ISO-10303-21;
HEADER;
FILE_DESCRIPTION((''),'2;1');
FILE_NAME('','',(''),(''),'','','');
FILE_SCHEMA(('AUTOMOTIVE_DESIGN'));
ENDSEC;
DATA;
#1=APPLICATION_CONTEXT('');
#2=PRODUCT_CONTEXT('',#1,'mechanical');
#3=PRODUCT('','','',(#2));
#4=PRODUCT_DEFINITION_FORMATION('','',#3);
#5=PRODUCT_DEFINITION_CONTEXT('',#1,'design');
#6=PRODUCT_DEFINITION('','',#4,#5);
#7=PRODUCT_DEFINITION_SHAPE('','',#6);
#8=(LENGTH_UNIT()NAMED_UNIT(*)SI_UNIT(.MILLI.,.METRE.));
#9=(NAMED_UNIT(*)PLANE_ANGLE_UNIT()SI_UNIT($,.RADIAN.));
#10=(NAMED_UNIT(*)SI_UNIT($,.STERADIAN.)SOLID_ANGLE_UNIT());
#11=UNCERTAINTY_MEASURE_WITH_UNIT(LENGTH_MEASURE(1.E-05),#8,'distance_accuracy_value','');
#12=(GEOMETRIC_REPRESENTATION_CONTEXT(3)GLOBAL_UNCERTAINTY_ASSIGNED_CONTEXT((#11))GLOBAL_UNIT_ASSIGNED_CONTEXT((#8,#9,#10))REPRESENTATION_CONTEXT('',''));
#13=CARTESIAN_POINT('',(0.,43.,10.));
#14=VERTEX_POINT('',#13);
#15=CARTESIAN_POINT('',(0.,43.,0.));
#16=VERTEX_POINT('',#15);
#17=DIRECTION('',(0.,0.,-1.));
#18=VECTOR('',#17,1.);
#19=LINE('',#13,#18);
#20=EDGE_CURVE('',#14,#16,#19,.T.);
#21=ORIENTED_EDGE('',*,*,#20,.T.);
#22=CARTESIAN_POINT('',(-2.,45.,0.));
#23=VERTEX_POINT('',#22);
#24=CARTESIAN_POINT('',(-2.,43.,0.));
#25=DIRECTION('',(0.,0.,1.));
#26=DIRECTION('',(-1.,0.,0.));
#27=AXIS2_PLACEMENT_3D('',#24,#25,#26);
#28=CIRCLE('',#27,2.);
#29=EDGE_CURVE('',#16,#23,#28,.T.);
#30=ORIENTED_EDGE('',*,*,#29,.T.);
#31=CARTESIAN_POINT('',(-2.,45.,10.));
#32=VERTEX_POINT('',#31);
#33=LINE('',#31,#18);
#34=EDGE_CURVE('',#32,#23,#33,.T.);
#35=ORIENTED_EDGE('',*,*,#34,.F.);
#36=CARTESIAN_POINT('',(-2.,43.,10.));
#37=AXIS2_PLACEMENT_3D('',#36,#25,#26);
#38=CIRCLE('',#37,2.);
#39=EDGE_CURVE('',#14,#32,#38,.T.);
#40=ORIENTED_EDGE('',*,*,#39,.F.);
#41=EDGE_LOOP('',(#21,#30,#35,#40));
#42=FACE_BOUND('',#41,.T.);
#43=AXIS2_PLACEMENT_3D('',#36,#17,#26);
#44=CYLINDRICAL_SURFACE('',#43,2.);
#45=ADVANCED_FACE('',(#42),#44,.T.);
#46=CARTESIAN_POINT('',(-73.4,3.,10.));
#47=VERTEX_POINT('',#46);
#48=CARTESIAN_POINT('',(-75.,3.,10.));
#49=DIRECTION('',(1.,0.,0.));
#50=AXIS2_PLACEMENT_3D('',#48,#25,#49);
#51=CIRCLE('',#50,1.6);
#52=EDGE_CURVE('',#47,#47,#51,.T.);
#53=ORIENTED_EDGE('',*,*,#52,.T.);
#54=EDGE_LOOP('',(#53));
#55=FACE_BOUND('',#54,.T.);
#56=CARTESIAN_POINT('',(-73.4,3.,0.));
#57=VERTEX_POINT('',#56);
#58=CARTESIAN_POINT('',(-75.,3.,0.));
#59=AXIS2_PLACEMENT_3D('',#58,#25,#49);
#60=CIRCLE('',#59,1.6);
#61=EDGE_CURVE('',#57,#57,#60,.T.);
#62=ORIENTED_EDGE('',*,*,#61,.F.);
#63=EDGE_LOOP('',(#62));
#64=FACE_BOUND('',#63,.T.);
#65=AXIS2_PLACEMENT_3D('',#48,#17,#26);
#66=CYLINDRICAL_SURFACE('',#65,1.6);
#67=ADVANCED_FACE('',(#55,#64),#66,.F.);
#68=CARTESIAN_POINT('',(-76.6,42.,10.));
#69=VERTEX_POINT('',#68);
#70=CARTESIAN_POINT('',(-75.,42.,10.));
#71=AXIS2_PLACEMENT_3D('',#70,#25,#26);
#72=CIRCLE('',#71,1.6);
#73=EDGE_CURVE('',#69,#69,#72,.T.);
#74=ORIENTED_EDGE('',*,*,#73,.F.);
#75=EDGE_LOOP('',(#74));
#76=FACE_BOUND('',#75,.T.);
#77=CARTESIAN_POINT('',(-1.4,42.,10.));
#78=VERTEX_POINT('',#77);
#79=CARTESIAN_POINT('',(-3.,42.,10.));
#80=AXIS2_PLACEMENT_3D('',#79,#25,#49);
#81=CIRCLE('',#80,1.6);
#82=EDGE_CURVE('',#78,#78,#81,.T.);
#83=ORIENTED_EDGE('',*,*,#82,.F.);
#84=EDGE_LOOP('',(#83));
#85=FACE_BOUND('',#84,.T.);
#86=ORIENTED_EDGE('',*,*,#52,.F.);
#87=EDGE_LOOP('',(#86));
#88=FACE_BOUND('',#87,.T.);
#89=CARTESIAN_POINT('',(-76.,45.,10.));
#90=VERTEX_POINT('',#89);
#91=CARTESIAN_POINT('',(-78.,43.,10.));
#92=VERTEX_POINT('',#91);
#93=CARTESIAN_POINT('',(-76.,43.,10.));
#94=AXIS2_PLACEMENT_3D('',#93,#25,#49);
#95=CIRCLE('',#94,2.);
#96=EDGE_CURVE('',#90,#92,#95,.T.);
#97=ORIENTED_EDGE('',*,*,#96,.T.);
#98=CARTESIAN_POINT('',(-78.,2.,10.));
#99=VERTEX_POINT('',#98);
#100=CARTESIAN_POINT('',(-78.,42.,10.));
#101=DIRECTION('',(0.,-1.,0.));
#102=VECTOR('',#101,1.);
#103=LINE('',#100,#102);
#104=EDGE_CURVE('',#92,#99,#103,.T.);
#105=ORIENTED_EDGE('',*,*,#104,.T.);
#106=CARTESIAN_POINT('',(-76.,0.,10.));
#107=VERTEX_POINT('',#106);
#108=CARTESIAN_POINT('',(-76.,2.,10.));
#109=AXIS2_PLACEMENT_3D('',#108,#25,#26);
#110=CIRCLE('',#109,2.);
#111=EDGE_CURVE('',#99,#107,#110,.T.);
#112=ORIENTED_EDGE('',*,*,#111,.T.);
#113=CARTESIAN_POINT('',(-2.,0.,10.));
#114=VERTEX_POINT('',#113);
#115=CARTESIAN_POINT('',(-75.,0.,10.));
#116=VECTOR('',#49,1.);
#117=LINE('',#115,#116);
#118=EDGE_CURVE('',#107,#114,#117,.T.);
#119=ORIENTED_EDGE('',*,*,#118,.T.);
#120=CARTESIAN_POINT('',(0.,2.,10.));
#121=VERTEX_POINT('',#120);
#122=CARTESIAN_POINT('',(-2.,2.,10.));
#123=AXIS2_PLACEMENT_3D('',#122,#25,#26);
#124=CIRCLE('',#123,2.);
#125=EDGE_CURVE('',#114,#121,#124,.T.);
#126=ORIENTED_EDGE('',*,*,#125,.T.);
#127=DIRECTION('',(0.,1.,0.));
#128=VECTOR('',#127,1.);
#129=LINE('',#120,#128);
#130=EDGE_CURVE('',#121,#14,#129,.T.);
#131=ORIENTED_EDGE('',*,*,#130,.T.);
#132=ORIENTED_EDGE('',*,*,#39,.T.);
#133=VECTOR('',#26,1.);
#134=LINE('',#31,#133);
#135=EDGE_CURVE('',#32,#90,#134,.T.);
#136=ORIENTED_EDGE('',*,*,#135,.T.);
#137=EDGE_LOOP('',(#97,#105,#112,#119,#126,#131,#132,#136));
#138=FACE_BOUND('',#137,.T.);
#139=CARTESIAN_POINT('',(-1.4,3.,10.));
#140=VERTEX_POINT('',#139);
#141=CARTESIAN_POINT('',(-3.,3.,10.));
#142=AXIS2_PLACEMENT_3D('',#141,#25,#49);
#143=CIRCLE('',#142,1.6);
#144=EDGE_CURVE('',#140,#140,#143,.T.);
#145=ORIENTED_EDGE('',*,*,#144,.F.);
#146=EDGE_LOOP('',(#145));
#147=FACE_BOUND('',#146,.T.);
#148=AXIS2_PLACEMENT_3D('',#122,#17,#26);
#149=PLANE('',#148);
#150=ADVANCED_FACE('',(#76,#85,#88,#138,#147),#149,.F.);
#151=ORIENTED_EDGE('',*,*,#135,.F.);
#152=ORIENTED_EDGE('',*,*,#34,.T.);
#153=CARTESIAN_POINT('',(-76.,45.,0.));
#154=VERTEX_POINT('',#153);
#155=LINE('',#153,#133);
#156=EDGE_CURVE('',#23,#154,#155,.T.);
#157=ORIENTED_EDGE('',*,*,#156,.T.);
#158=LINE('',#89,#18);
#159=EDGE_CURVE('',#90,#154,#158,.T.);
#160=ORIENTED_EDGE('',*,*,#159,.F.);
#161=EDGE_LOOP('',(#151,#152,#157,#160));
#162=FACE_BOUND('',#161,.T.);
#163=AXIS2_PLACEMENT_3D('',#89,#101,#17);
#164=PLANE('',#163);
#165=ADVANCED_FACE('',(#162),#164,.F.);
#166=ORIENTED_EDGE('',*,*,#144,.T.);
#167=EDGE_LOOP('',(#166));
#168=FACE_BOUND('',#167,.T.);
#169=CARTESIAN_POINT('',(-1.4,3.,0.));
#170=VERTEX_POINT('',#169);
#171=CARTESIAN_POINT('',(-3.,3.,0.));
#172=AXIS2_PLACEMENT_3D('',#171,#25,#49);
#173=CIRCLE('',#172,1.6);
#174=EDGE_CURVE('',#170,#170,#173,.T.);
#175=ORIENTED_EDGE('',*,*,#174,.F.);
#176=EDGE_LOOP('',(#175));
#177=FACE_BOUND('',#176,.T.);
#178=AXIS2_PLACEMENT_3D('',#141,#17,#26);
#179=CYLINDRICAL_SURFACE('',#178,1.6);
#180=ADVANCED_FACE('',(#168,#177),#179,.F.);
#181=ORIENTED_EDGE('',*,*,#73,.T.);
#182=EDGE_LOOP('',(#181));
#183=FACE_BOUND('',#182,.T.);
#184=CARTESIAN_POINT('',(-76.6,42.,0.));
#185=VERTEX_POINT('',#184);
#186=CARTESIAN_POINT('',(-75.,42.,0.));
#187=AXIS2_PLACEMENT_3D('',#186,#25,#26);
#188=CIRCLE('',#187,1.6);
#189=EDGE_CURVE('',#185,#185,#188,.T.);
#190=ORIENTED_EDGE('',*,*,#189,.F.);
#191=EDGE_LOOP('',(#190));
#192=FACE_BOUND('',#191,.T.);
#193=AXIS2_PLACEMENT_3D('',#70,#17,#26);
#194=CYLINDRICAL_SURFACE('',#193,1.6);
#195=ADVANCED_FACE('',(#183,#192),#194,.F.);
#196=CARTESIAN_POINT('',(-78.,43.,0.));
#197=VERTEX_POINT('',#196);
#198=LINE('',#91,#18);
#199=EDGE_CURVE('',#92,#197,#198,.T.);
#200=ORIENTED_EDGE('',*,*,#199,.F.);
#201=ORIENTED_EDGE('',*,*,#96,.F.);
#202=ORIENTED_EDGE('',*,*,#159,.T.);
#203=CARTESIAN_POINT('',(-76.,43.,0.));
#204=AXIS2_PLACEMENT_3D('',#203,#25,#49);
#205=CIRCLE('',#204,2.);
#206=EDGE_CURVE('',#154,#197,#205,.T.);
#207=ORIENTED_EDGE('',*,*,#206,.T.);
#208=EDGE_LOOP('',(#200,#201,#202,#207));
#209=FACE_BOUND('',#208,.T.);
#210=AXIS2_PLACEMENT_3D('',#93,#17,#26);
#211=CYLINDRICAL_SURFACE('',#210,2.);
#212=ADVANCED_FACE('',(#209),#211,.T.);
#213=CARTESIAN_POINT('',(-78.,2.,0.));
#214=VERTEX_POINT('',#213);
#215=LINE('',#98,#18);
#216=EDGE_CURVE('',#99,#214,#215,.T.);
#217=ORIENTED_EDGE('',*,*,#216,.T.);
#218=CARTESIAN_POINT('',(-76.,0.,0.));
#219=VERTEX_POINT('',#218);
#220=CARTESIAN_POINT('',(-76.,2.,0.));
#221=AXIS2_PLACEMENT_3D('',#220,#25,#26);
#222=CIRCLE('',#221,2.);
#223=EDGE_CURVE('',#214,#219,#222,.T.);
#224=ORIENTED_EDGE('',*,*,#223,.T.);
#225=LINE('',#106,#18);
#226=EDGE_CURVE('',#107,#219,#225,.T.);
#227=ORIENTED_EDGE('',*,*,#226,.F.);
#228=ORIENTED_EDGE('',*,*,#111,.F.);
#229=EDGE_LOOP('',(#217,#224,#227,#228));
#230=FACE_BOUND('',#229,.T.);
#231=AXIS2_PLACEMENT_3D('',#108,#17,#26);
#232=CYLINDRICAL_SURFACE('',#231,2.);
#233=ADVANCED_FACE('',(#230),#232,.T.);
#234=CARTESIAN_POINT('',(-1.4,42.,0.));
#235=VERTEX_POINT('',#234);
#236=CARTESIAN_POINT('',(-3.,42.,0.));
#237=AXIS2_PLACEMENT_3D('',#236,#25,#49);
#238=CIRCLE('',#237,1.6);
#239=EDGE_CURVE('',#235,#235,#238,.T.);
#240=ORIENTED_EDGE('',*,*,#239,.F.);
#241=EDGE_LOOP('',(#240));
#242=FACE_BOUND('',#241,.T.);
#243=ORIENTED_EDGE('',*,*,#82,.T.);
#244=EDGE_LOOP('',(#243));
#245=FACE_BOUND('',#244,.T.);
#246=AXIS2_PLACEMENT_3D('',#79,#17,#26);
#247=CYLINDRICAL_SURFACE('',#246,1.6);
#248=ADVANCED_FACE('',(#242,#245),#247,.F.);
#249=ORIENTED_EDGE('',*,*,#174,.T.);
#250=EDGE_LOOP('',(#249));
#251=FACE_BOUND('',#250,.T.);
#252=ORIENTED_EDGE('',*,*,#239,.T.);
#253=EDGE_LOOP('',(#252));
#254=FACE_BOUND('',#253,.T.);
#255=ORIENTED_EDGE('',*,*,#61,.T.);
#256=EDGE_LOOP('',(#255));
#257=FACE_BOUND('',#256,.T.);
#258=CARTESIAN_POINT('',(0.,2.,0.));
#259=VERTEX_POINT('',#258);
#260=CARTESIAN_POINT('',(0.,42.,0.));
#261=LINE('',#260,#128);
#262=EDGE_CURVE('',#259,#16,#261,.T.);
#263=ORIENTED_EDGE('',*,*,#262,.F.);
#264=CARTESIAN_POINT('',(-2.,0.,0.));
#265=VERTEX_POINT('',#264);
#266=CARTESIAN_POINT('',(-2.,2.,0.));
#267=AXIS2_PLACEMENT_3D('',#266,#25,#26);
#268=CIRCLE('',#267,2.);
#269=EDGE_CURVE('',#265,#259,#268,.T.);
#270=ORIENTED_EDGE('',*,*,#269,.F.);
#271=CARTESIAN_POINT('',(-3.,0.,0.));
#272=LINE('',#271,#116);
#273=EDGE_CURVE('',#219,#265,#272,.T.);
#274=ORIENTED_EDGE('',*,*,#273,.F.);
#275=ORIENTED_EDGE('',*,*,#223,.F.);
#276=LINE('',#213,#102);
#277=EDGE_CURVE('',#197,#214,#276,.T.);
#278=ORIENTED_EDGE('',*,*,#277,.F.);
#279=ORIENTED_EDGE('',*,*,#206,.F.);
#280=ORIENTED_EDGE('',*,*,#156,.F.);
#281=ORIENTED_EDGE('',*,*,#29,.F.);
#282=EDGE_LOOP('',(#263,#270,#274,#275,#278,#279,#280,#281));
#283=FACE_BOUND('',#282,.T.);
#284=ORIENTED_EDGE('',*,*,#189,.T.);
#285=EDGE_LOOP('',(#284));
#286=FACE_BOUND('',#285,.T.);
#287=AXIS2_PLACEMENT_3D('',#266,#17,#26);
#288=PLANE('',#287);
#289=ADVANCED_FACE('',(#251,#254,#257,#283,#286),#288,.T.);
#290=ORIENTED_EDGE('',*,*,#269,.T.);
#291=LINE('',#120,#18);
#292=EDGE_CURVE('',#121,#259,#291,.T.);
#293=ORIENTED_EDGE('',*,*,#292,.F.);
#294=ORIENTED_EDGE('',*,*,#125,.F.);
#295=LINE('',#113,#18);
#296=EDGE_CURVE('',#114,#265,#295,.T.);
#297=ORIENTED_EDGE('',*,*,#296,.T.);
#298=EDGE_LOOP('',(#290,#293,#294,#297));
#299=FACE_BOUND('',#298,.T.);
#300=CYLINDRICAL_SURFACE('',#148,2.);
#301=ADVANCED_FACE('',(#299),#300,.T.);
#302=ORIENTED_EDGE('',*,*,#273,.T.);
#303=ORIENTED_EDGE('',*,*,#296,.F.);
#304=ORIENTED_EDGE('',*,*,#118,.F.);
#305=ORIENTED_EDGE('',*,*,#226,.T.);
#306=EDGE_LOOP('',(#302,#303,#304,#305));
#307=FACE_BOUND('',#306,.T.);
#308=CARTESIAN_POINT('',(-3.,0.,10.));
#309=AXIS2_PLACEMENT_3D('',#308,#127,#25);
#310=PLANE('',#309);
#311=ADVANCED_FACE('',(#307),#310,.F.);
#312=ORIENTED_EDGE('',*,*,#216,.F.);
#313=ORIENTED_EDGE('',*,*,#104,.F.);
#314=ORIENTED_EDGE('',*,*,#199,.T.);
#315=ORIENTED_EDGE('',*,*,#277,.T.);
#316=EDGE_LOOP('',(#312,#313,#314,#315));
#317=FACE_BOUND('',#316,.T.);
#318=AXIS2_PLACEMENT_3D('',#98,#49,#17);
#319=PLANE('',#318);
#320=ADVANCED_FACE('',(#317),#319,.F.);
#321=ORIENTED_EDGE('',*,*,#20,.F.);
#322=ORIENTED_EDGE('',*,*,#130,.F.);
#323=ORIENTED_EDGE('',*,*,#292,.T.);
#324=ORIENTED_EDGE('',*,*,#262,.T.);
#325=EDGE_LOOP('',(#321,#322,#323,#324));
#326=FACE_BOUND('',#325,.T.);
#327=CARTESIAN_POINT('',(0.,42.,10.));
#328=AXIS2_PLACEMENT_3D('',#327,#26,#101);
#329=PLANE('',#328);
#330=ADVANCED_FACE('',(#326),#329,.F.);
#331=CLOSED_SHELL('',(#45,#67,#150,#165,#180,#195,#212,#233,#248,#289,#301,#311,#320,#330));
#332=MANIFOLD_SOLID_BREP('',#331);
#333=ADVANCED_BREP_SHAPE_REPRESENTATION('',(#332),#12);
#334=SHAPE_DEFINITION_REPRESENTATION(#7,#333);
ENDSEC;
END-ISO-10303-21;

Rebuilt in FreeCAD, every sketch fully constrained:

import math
import FreeCAD as App
import Part
import Sketcher
Q = App.Units.Quantity

doc = App.newDocument("Part")
body = doc.addObject("PartDesign::Body", "Body")

# Sketch on XY plane
sketch1 = body.newObject("Sketcher::SketchObject", "Sketch")
sketch1.AttachmentSupport = (doc.getObject("XY_Plane"), [""])
sketch1.MapMode = "FlatFace"
sketch1.addGeometry([
    Part.ArcOfCircle(Part.Circle(App.Vector(-76, 43, 0), App.Vector(0, 0, 1), 2), math.radians(90), math.radians(180)),  # 0
    Part.LineSegment(App.Vector(-78, 43, 0), App.Vector(-78, 2, 0)),  # 1
    Part.ArcOfCircle(Part.Circle(App.Vector(-76, 2, 0), App.Vector(0, 0, 1), 2), math.radians(-180), math.radians(-90)),  # 2
    Part.LineSegment(App.Vector(-76, 0, 0), App.Vector(-2, 0, 0)),  # 3
    Part.ArcOfCircle(Part.Circle(App.Vector(-2, 2, 0), App.Vector(0, 0, 1), 2), math.radians(-90), math.radians(0)),  # 4
    Part.LineSegment(App.Vector(0, 2, 0), App.Vector(0, 43, 0)),  # 5
    Part.ArcOfCircle(Part.Circle(App.Vector(-2, 43, 0), App.Vector(0, 0, 1), 2), math.radians(0), math.radians(90)),  # 6
    Part.LineSegment(App.Vector(-2, 45, 0), App.Vector(-76, 45, 0)),  # 7
    Part.Circle(App.Vector(-3, 3, 0), App.Vector(0, 0, 1), 1.6),  # 8
    Part.Circle(App.Vector(-75, 3, 0), App.Vector(0, 0, 1), 1.6),  # 9
    Part.Circle(App.Vector(-3, 42, 0), App.Vector(0, 0, 1), 1.6),  # 10
    Part.Circle(App.Vector(-75, 42, 0), App.Vector(0, 0, 1), 1.6),  # 11
], False)
sketch1.addConstraint([
    Sketcher.Constraint("Tangent", 0, 2, 1, 1),
    Sketcher.Constraint("Tangent", 1, 2, 2, 1),
    Sketcher.Constraint("Tangent", 2, 2, 3, 1),
    Sketcher.Constraint("Tangent", 3, 2, 4, 1),
    Sketcher.Constraint("Tangent", 4, 2, 5, 1),
    Sketcher.Constraint("Tangent", 5, 2, 6, 1),
    Sketcher.Constraint("Tangent", 6, 2, 7, 1),
    Sketcher.Constraint("Tangent", 7, 2, 0, 1),
    Sketcher.Constraint("Vertical", 1),
    Sketcher.Constraint("Horizontal", 3),
    Sketcher.Constraint("Vertical", 5),
    Sketcher.Constraint("Horizontal", 7),
    Sketcher.Constraint("Equal", 0, 2),
    Sketcher.Constraint("Equal", 2, 4),
    Sketcher.Constraint("Equal", 4, 6),
    Sketcher.Constraint("Equal", 8, 9),
    Sketcher.Constraint("Equal", 9, 10),
    Sketcher.Constraint("Equal", 10, 11),
    Sketcher.Constraint("PointOnObject", 2, 2, -1),
    Sketcher.Constraint("PointOnObject", 4, 2, -2),
    Sketcher.Constraint("Horizontal", 8, 3, 9, 3),
    Sketcher.Constraint("Horizontal", 10, 3, 11, 3),
    Sketcher.Constraint("Vertical", 8, 3, 10, 3),
    Sketcher.Constraint("Vertical", 9, 3, 11, 3),
    Sketcher.Constraint("Radius", 0, Q("2 mm")),
    Sketcher.Constraint("Diameter", 8, Q("3.2 mm")),
    Sketcher.Constraint("DistanceX", 3, 1, 3, 2, Q("74 mm")),
    Sketcher.Constraint("DistanceY", 1, 2, 1, 1, Q("41 mm")),
    Sketcher.Constraint("DistanceX", 8, 3, -1, 1, Q("3 mm")),
    Sketcher.Constraint("DistanceY", -1, 1, 8, 3, Q("3 mm")),
    Sketcher.Constraint("DistanceX", 9, 3, -1, 1, Q("75 mm")),
    Sketcher.Constraint("DistanceY", -1, 1, 10, 3, Q("42 mm")),
])
pad1 = body.newObject("PartDesign::Pad", "Pad")
pad1.Profile = sketch1
pad1.Length = 10

doc.recompute()
